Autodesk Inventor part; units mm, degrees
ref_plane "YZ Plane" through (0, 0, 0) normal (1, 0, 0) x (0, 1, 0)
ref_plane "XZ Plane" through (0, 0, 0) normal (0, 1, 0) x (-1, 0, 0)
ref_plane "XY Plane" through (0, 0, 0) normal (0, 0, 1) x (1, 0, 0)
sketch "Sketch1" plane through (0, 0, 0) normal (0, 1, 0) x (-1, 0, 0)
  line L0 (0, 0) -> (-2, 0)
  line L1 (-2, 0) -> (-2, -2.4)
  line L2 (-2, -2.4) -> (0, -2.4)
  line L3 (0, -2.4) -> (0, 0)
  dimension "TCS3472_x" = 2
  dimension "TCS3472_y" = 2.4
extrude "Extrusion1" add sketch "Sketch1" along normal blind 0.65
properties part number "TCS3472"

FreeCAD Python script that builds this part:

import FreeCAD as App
import Part
import Sketcher

V = App.Vector

doc = App.newDocument("Part")
body = doc.addObject("PartDesign::Body", "Body")

sketch1 = body.newObject("Sketcher::SketchObject", "Sketch")
sketch1.AttachmentSupport = (doc.getObject("XZ_Plane"), [""])
sketch1.MapMode = "FlatFace"
sketch1.addGeometry(Part.LineSegment(V(0, -2.4, 0), V(0, 0, 0)), False)
sketch1.addGeometry(Part.LineSegment(V(0, 0, 0), V(2, 0, 0)), False)
sketch1.addGeometry(Part.LineSegment(V(2, 0, 0), V(2, -2.4, 0)), False)
sketch1.addGeometry(Part.LineSegment(V(2, -2.4, 0), V(0, -2.4, 0)), False)
sketch1.addConstraint(Sketcher.Constraint("Coincident", 0, 2, 1, 1))
sketch1.addConstraint(Sketcher.Constraint("Coincident", 1, 2, 2, 1))
sketch1.addConstraint(Sketcher.Constraint("Coincident", 2, 2, 3, 1))
sketch1.addConstraint(Sketcher.Constraint("Coincident", 3, 2, 0, 1))
sketch1.addConstraint(Sketcher.Constraint("Vertical", 0))
sketch1.addConstraint(Sketcher.Constraint("Horizontal", 1))
sketch1.addConstraint(Sketcher.Constraint("Vertical", 2))
sketch1.addConstraint(Sketcher.Constraint("Horizontal", 3))
sketch1.addConstraint(Sketcher.Constraint("Coincident", 0, 2, -1, 1))
sketch1.addConstraint(Sketcher.Constraint("DistanceX", 1, 1, 1, 2, 2.0))
sketch1.addConstraint(Sketcher.Constraint("DistanceY", 0, 1, 0, 2, 2.4))
pad1 = body.newObject("PartDesign::Pad", "Pad")
pad1.Profile = sketch1
pad1.Length = 0.65
pad1.Reversed = True

doc.recompute()
